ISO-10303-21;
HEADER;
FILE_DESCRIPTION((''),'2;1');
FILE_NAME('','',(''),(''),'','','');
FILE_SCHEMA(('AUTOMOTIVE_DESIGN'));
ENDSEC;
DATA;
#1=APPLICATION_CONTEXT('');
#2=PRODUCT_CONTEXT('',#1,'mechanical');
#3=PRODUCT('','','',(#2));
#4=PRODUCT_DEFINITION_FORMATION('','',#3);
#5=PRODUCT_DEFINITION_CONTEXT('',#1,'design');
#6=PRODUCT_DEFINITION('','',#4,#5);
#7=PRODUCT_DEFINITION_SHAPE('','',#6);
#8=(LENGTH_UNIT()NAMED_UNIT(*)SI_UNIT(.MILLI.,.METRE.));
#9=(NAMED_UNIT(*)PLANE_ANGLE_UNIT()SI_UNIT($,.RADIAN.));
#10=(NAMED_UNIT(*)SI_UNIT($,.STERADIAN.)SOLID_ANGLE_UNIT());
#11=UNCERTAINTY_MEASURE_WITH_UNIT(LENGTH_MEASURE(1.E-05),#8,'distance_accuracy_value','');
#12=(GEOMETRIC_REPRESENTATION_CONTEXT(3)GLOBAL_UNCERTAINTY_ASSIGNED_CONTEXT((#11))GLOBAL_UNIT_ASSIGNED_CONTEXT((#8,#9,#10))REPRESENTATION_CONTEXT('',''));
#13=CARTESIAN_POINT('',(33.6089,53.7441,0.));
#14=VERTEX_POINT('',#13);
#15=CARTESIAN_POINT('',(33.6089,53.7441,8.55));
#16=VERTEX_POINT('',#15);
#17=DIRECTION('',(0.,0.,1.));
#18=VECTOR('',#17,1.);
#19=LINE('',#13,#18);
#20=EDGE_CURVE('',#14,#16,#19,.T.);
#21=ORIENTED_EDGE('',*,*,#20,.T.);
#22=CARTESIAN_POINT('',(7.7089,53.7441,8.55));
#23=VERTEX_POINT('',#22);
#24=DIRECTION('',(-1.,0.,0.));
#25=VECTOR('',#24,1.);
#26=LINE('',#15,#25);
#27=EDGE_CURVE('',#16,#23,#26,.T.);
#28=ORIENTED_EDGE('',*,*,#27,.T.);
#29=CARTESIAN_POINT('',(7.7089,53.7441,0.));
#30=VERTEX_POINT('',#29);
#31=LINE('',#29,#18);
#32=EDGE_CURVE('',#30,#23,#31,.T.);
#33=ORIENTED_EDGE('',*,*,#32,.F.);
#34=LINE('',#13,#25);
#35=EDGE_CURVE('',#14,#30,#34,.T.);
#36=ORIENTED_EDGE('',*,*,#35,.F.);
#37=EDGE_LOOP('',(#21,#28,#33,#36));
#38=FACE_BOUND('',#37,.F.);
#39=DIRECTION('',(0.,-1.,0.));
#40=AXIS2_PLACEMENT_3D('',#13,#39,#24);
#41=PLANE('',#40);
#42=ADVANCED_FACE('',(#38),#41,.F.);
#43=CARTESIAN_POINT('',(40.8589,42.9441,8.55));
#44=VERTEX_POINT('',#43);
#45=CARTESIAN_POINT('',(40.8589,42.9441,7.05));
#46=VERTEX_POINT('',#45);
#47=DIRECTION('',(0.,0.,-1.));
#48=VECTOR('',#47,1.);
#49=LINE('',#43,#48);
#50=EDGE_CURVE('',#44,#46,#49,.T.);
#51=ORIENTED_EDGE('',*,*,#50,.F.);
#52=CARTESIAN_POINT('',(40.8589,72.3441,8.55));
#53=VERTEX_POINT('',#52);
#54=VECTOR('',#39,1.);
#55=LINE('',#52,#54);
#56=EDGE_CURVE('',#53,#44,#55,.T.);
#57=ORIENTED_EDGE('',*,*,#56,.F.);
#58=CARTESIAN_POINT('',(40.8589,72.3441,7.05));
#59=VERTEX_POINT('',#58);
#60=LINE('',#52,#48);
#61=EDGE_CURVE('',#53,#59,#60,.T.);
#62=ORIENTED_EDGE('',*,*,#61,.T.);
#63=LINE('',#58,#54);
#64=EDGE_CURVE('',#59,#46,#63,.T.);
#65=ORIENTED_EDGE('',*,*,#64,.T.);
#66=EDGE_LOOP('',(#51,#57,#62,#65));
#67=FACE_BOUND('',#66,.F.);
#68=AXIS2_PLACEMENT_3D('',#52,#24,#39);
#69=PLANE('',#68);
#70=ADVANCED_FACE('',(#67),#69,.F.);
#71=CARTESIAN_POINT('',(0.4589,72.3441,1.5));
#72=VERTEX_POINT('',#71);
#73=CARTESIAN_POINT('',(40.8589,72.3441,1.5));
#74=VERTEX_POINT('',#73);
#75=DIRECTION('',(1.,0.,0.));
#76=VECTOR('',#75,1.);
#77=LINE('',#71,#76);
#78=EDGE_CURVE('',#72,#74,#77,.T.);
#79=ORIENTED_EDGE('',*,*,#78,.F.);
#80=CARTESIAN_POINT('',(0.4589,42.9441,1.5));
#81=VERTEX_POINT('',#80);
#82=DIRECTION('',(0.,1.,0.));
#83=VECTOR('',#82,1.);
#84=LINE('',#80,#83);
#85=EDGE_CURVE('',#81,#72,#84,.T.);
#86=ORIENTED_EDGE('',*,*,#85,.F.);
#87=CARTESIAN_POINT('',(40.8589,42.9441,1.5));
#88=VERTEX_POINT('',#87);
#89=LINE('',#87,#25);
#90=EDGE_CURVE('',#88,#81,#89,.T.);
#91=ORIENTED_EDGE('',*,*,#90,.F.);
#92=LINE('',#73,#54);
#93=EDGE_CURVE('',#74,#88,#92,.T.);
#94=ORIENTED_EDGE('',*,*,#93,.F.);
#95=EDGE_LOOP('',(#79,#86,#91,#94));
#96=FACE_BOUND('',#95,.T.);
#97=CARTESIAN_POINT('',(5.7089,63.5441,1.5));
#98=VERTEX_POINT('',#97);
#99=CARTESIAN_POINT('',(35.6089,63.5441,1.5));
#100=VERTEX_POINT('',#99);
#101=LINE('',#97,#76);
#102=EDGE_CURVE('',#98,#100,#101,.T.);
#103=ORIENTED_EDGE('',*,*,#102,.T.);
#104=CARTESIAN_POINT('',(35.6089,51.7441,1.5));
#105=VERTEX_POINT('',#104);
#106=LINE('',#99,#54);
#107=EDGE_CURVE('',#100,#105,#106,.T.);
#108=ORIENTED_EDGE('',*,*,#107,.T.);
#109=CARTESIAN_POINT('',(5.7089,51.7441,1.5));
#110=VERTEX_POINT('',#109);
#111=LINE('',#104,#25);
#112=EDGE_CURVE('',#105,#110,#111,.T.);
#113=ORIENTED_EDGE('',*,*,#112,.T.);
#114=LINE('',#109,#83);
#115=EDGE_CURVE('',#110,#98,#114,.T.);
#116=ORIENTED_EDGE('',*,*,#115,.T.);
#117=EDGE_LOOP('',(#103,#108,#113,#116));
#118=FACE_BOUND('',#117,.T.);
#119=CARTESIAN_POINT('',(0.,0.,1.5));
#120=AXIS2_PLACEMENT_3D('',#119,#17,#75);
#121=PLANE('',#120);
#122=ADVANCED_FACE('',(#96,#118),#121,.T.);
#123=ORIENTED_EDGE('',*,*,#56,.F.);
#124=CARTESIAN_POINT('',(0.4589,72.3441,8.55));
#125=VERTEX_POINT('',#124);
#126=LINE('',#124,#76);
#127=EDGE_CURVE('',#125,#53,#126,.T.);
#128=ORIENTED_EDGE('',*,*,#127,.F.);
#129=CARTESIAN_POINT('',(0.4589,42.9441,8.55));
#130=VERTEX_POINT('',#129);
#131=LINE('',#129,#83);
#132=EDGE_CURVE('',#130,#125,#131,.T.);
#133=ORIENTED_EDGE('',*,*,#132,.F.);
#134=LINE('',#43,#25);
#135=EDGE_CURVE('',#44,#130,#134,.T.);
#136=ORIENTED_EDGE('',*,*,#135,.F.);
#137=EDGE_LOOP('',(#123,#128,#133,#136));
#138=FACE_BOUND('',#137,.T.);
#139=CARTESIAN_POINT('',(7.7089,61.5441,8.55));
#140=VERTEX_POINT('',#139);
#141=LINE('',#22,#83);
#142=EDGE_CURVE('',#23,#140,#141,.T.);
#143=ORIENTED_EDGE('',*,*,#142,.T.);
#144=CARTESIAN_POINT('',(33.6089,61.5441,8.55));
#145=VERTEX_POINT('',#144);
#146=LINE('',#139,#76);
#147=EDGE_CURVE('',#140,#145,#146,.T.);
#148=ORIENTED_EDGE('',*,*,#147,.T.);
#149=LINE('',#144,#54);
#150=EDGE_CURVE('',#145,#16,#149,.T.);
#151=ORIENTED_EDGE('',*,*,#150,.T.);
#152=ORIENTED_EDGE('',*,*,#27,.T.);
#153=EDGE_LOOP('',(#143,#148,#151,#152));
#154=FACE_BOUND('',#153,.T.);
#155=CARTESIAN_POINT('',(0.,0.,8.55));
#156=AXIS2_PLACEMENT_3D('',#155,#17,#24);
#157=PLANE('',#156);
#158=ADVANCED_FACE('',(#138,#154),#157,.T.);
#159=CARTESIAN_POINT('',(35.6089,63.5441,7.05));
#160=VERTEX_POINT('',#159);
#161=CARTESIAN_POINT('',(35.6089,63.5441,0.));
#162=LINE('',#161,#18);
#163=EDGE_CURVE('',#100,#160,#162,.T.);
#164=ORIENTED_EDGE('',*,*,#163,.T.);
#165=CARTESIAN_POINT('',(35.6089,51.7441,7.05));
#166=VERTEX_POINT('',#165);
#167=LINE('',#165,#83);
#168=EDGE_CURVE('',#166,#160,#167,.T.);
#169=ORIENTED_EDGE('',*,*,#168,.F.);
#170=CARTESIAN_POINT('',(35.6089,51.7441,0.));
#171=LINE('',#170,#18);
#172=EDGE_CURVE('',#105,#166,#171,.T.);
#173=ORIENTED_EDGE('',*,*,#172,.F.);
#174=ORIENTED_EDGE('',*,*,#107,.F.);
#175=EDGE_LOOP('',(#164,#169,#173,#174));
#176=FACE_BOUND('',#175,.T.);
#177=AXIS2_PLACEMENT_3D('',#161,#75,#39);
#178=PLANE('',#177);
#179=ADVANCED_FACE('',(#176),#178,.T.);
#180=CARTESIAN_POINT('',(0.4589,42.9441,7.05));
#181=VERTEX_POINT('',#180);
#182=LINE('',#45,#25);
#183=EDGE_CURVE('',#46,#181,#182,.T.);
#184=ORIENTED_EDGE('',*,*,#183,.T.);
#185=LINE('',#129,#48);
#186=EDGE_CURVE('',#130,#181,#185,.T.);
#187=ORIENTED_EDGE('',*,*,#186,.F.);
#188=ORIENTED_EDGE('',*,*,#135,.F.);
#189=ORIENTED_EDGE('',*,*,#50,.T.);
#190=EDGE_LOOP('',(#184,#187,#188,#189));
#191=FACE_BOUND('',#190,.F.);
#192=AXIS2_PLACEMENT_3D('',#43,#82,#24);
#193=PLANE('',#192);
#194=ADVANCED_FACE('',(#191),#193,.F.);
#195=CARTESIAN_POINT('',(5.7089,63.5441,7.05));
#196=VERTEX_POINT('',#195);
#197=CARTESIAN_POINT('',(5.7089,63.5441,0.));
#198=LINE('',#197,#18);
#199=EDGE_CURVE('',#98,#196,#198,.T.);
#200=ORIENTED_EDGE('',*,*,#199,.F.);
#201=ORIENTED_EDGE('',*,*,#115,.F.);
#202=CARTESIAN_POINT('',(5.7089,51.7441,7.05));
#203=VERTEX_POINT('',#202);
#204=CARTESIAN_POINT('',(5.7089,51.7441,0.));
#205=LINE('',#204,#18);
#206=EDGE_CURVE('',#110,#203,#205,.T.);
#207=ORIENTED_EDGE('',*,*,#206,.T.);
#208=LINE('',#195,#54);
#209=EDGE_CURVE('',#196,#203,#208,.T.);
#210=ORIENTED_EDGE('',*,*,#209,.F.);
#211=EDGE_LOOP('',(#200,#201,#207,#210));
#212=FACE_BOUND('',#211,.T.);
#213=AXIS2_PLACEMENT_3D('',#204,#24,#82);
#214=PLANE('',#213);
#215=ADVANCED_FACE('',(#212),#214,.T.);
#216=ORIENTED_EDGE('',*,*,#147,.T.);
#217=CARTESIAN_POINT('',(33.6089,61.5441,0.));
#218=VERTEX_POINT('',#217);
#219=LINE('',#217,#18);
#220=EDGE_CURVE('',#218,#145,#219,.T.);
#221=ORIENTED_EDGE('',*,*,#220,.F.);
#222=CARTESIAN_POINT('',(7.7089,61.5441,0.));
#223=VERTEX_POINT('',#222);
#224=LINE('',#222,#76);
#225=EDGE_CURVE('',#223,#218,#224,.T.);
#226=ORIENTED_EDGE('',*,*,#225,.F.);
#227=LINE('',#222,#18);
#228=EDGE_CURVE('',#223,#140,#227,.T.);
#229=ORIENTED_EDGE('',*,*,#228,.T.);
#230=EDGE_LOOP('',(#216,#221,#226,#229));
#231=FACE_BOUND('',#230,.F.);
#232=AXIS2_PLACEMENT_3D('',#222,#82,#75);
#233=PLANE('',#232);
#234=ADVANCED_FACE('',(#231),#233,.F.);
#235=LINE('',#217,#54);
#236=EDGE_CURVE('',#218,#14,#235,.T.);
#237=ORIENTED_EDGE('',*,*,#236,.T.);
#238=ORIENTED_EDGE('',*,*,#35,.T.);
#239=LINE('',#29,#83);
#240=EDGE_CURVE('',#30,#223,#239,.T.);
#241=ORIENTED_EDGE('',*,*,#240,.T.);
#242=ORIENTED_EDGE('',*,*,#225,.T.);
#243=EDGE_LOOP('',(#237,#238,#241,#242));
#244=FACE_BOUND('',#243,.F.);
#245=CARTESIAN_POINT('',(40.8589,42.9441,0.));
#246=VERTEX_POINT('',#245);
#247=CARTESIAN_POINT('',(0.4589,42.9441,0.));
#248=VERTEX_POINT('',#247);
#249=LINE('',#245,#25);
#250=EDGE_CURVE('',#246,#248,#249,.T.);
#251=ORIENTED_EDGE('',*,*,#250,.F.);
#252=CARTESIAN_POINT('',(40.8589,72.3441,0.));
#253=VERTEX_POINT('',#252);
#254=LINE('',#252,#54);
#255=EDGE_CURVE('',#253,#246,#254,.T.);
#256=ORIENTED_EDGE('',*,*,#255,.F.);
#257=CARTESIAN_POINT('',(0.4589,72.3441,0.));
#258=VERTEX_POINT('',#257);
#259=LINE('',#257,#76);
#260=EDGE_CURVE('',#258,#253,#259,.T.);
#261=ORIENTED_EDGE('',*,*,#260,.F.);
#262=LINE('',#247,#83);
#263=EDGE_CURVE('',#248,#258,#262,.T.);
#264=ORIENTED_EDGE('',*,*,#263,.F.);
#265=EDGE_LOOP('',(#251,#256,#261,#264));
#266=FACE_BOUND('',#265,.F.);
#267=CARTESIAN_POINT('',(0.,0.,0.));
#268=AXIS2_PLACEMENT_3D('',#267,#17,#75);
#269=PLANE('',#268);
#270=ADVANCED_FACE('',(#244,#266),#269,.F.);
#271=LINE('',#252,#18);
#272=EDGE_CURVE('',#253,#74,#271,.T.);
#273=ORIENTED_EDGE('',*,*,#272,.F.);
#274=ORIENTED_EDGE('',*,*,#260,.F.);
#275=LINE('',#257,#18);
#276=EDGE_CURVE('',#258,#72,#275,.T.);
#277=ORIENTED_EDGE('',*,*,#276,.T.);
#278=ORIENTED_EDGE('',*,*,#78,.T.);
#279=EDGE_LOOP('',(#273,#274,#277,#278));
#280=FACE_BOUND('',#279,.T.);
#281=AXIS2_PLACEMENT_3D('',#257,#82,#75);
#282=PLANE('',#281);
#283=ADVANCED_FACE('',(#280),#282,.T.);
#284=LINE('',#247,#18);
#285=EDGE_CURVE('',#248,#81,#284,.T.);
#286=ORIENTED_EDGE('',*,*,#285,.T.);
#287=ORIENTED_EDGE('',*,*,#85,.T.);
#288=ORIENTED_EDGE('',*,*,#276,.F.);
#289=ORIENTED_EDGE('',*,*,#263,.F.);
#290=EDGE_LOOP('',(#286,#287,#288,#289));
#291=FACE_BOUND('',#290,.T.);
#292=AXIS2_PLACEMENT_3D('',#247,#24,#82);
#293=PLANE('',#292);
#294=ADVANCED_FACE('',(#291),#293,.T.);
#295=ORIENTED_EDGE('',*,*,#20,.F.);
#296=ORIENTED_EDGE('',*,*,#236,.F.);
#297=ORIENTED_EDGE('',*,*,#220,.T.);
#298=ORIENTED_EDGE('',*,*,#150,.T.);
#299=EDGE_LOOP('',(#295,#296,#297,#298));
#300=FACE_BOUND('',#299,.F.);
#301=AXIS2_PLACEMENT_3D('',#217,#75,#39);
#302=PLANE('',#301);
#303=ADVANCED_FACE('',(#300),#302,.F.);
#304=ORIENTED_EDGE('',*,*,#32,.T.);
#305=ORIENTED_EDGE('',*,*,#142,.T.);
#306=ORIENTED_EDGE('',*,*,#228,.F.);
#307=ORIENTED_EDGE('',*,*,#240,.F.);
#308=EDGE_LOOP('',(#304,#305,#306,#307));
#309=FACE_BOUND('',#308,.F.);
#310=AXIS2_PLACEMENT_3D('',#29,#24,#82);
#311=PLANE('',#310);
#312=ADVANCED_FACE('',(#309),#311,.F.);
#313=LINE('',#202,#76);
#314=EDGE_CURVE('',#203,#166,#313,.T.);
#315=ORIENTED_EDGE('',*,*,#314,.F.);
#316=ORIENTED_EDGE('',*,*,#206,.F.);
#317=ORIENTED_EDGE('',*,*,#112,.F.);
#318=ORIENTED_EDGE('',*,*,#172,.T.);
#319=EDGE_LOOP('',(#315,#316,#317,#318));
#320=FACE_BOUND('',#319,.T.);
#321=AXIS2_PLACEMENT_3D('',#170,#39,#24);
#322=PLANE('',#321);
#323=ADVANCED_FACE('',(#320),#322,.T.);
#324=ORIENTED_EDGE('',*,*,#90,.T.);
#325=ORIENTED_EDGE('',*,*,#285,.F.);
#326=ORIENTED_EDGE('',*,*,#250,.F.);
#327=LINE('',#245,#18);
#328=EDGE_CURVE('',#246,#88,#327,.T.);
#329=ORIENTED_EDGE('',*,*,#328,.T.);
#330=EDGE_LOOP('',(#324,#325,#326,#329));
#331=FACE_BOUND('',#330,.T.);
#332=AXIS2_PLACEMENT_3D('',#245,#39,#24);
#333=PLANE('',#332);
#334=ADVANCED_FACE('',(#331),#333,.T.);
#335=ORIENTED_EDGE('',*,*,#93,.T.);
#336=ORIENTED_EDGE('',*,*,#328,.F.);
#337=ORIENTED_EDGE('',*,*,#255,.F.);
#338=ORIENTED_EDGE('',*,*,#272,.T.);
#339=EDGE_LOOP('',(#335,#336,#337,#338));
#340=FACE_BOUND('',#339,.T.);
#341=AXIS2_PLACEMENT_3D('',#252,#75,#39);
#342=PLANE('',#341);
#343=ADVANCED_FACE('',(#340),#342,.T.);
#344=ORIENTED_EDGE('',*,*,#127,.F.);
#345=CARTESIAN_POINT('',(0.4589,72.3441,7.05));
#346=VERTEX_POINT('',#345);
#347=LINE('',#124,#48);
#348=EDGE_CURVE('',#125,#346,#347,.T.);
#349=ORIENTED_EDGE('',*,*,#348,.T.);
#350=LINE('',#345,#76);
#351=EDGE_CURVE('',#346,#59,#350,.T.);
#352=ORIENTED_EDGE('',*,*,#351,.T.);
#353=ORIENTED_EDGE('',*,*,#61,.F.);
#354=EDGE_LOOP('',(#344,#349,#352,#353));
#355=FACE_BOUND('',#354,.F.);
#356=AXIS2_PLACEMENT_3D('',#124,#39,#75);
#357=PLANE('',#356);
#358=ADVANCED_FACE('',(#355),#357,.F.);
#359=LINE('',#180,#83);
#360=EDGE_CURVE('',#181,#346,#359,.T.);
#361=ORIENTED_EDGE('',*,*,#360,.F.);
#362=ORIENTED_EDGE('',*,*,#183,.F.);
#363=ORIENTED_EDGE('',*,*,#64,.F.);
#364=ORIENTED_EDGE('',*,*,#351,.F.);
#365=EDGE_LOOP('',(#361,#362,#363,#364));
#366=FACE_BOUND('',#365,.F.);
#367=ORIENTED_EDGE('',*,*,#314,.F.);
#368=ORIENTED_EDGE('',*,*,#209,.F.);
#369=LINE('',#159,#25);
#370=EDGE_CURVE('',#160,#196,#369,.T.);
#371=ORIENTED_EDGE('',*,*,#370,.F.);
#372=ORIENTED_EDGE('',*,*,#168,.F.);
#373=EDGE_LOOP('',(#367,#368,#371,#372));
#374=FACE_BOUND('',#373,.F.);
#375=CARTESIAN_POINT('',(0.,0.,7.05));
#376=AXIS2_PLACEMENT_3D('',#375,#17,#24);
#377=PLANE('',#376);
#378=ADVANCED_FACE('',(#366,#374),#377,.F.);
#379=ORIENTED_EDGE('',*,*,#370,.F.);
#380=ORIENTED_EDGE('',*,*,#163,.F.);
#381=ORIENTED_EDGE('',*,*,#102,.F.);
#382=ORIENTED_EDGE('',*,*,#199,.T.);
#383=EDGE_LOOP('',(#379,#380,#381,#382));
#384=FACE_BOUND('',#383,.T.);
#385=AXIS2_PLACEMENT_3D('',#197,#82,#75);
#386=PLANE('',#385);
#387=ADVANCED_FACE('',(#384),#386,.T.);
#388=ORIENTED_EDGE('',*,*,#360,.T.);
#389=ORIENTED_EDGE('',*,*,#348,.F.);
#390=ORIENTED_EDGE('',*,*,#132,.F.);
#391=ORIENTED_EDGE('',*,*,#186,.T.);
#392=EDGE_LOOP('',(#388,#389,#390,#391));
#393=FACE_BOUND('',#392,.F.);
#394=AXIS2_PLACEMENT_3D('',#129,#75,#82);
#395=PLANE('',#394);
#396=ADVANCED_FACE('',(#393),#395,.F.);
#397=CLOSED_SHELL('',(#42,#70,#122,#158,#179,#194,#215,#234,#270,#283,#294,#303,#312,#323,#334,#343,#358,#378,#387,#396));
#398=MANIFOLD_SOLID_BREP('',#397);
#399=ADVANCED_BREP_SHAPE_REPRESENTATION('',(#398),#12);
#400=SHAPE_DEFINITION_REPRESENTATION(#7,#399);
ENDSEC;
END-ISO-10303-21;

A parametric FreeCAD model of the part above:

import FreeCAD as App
import Part
import Sketcher
from FreeCAD import Vector

doc = App.newDocument("Part")
params = doc.addObject("Spreadsheet::Sheet", "Params")
for row, (alias, value) in enumerate([
    ("sketch1_width", "25.9 mm"),
    ("sketch1_height", "7.8 mm"),
    ("pad1_length", "8.55 mm"),
    ("sketch2_width", "40.4 mm"),
    ("sketch2_width2", "29.9 mm"),
    ("sketch2_height", "29.4 mm"),
    ("sketch2_height2", "11.8 mm"),
    ("pad2_length", "1.5 mm"),
    ("sketch3_width", "40.4 mm"),
    ("sketch3_width2", "29.9 mm"),
    ("sketch3_height", "29.4 mm"),
    ("sketch3_height2", "11.8 mm"),
    ("pad3_length", "1.5 mm"),
], start=1):
    params.set(f"A{row}", alias)
    params.set(f"B{row}", "=" + value)
    params.setAlias(f"B{row}", alias)

body = doc.addObject("PartDesign::Body", "Body")

sketch1 = body.newObject("Sketcher::SketchObject", "Sketch")
sketch1.AttachmentSupport = (doc.getObject("XY_Plane"), [""])
sketch1.MapMode = "FlatFace"
sketch1.addGeometry([
    Part.LineSegment(Vector(5.7089, 51.7441, 0), Vector(35.6089, 51.7441, 0)),
    Part.LineSegment(Vector(35.6089, 51.7441, 0), Vector(35.6089, 63.5441, 0)),
    Part.LineSegment(Vector(35.6089, 63.5441, 0), Vector(5.7089, 63.5441, 0)),
    Part.LineSegment(Vector(5.7089, 63.5441, 0), Vector(5.7089, 51.7441, 0)),
    Part.LineSegment(Vector(7.7089, 53.7441, 0), Vector(7.7089, 61.5441, 0)),
    Part.LineSegment(Vector(7.7089, 61.5441, 0), Vector(33.6089, 61.5441, 0)),
    Part.LineSegment(Vector(33.6089, 61.5441, 0), Vector(33.6089, 53.7441, 0)),
    Part.LineSegment(Vector(33.6089, 53.7441, 0), Vector(7.7089, 53.7441, 0)),
], False)
sketch1.addConstraint([
    Sketcher.Constraint("Coincident", 0, 2, 1, 1),
    Sketcher.Constraint("Coincident", 1, 2, 2, 1),
    Sketcher.Constraint("Coincident", 2, 2, 3, 1),
    Sketcher.Constraint("Coincident", 3, 2, 0, 1),
    Sketcher.Constraint("Coincident", 4, 2, 5, 1),
    Sketcher.Constraint("Coincident", 5, 2, 6, 1),
    Sketcher.Constraint("Coincident", 6, 2, 7, 1),
    Sketcher.Constraint("Coincident", 7, 2, 4, 1),
    Sketcher.Constraint("Horizontal", 0),
    Sketcher.Constraint("Vertical", 1),
    Sketcher.Constraint("Horizontal", 2),
    Sketcher.Constraint("Vertical", 3),
    Sketcher.Constraint("Vertical", 4),
    Sketcher.Constraint("Horizontal", 5),
    Sketcher.Constraint("Vertical", 6),
    Sketcher.Constraint("Horizontal", 7),
    Sketcher.Constraint("DistanceX", 5, 1, 5, 2, 25.9),
    Sketcher.Constraint("DistanceY", 4, 1, 4, 2, 7.8),
    Sketcher.Constraint("DistanceX", 2, 2, 4, 2, 2.0),
    Sketcher.Constraint("DistanceY", 4, 2, 2, 2, 2.0),
    Sketcher.Constraint("DistanceX", 5, 2, 1, 2, 2.0),
    Sketcher.Constraint("DistanceY", 0, 2, 6, 2, 2.0),
    Sketcher.Constraint("DistanceX", -1, 1, 0, 2, 35.609),
    Sketcher.Constraint("DistanceY", -1, 1, 0, 2, 51.744),
])
sketch1.setExpression("Constraints[16]", "Params.sketch1_width")
sketch1.setExpression("Constraints[17]", "Params.sketch1_height")
pad1 = body.newObject("PartDesign::Pad", "Pad")
pad1.Profile = sketch1
pad1.setExpression("Length", "Params.pad1_length")

sketch2 = body.newObject("Sketcher::SketchObject", "Sketch001")
sketch2.AttachmentSupport = (doc.getObject("XY_Plane"), [""])
sketch2.MapMode = "FlatFace"
sketch2.addGeometry([
    Part.LineSegment(Vector(40.8589, 72.3441, 0), Vector(0.4589, 72.3441, 0)),
    Part.LineSegment(Vector(0.4589, 72.3441, 0), Vector(0.4589, 42.9441, 0)),
    Part.LineSegment(Vector(0.4589, 42.9441, 0), Vector(40.8589, 42.9441, 0)),
    Part.LineSegment(Vector(40.8589, 42.9441, 0), Vector(40.8589, 72.3441, 0)),
    Part.LineSegment(Vector(35.6089, 63.5441, 0), Vector(35.6089, 51.7441, 0)),
    Part.LineSegment(Vector(35.6089, 51.7441, 0), Vector(5.7089, 51.7441, 0)),
    Part.LineSegment(Vector(5.7089, 51.7441, 0), Vector(5.7089, 63.5441, 0)),
    Part.LineSegment(Vector(5.7089, 63.5441, 0), Vector(35.6089, 63.5441, 0)),
], False)
sketch2.addConstraint([
    Sketcher.Constraint("Coincident", 0, 2, 1, 1),
    Sketcher.Constraint("Coincident", 1, 2, 2, 1),
    Sketcher.Constraint("Coincident", 2, 2, 3, 1),
    Sketcher.Constraint("Coincident", 3, 2, 0, 1),
    Sketcher.Constraint("Coincident", 4, 2, 5, 1),
    Sketcher.Constraint("Coincident", 5, 2, 6, 1),
    Sketcher.Constraint("Coincident", 6, 2, 7, 1),
    Sketcher.Constraint("Coincident", 7, 2, 4, 1),
    Sketcher.Constraint("Horizontal", 0),
    Sketcher.Constraint("Vertical", 1),
    Sketcher.Constraint("Horizontal", 2),
    Sketcher.Constraint("Vertical", 3),
    Sketcher.Constraint("Vertical", 4),
    Sketcher.Constraint("Horizontal", 5),
    Sketcher.Constraint("Vertical", 6),
    Sketcher.Constraint("Horizontal", 7),
    Sketcher.Constraint("DistanceX", 0, 2, 0, 1, 40.4),
    Sketcher.Constraint("DistanceX", 5, 2, 5, 1, 29.9),
    Sketcher.Constraint("DistanceY", 1, 2, 1, 1, 29.4),
    Sketcher.Constraint("DistanceY", 4, 2, 4, 1, 11.8),
    Sketcher.Constraint("DistanceY", 2, 2, 4, 2, 8.8),
    Sketcher.Constraint("DistanceX", 4, 2, 2, 2, 5.25),
    Sketcher.Constraint("DistanceX", -1, 1, 0, 2, 0.459),
    Sketcher.Constraint("DistanceY", -1, 1, 0, 2, 72.344),
])
sketch2.setExpression("Constraints[16]", "Params.sketch2_width")
sketch2.setExpression("Constraints[17]", "Params.sketch2_width2")
sketch2.setExpression("Constraints[18]", "Params.sketch2_height")
sketch2.setExpression("Constraints[19]", "Params.sketch2_height2")
pad2 = body.newObject("PartDesign::Pad", "Pad001")
pad2.Profile = sketch2
pad2.setExpression("Length", "Params.pad2_length")

sketch3 = body.newObject("Sketcher::SketchObject", "Sketch002")
sketch3.AttachmentSupport = (doc.getObject("XY_Plane"), [""])
sketch3.MapMode = "FlatFace"
sketch3.AttachmentOffset = App.Placement(Vector(0, 0, 8.55), App.Rotation())
sketch3.addGeometry([
    Part.LineSegment(Vector(40.8589, 42.9441, 0), Vector(40.8589, 72.3441, 0)),
    Part.LineSegment(Vector(40.8589, 72.3441, 0), Vector(0.4589, 72.3441, 0)),
    Part.LineSegment(Vector(0.4589, 72.3441, 0), Vector(0.4589, 42.9441, 0)),
    Part.LineSegment(Vector(0.4589, 42.9441, 0), Vector(40.8589, 42.9441, 0)),
    Part.LineSegment(Vector(5.7089, 63.5441, 0), Vector(35.6089, 63.5441, 0)),
    Part.LineSegment(Vector(35.6089, 63.5441, 0), Vector(35.6089, 51.7441, 0)),
    Part.LineSegment(Vector(35.6089, 51.7441, 0), Vector(5.7089, 51.7441, 0)),
    Part.LineSegment(Vector(5.7089, 51.7441, 0), Vector(5.7089, 63.5441, 0)),
], False)
sketch3.addConstraint([
    Sketcher.Constraint("Coincident", 0, 2, 1, 1),
    Sketcher.Constraint("Coincident", 1, 2, 2, 1),
    Sketcher.Constraint("Coincident", 2, 2, 3, 1),
    Sketcher.Constraint("Coincident", 3, 2, 0, 1),
    Sketcher.Constraint("Coincident", 4, 2, 5, 1),
    Sketcher.Constraint("Coincident", 5, 2, 6, 1),
    Sketcher.Constraint("Coincident", 6, 2, 7, 1),
    Sketcher.Constraint("Coincident", 7, 2, 4, 1),
    Sketcher.Constraint("Vertical", 0),
    Sketcher.Constraint("Horizontal", 1),
    Sketcher.Constraint("Vertical", 2),
    Sketcher.Constraint("Horizontal", 3),
    Sketcher.Constraint("Horizontal", 4),
    Sketcher.Constraint("Vertical", 5),
    Sketcher.Constraint("Horizontal", 6),
    Sketcher.Constraint("Vertical", 7),
    Sketcher.Constraint("DistanceX", 1, 2, 1, 1, 40.4),
    Sketcher.Constraint("DistanceX", 4, 1, 4, 2, 29.9),
    Sketcher.Constraint("DistanceY", 0, 1, 0, 2, 29.4),
    Sketcher.Constraint("DistanceY", 5, 2, 5, 1, 11.8),
    Sketcher.Constraint("DistanceY", 4, 2, 0, 2, 8.8),
    Sketcher.Constraint("DistanceX", 4, 2, 0, 2, 5.25),
    Sketcher.Constraint("DistanceX", -1, 1, 0, 2, 40.859),
    Sketcher.Constraint("DistanceY", -1, 1, 0, 2, 72.344),
])
sketch3.setExpression("Constraints[16]", "Params.sketch3_width")
sketch3.setExpression("Constraints[17]", "Params.sketch3_width2")
sketch3.setExpression("Constraints[18]", "Params.sketch3_height")
sketch3.setExpression("Constraints[19]", "Params.sketch3_height2")
pad3 = body.newObject("PartDesign::Pad", "Pad002")
pad3.Profile = sketch3
pad3.setExpression("Length", "Params.pad3_length")
pad3.Reversed = True

doc.recompute()
